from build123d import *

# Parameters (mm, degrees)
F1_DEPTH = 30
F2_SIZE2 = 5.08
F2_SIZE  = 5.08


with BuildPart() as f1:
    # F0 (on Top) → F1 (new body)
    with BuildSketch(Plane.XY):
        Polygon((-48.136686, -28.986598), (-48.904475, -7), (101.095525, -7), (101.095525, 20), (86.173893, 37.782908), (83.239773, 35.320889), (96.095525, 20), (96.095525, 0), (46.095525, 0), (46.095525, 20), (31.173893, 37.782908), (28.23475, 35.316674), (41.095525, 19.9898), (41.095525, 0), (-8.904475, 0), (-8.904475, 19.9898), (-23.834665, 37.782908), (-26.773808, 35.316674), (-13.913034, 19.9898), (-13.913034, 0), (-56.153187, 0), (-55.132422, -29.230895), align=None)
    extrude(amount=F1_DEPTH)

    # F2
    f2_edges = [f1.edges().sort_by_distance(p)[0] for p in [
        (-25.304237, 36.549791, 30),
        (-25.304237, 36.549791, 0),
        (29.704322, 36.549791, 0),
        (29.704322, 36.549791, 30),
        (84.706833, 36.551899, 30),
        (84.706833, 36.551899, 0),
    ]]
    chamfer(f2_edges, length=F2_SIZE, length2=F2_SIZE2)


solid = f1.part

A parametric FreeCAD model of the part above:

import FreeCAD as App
import Part
import Sketcher

V = App.Vector
Q = App.Units.Quantity


def edges_at(feature, points):
    """Names of the edges that pass closest to the given points."""
    edges = feature.Shape.Edges
    near = lambda p: min(range(len(edges)), key=lambda i: edges[i].distToShape(Part.Vertex(*p))[0])
    return sorted({f"Edge{near(p) + 1}" for p in points})

doc = App.newDocument("Part")
body = doc.addObject("PartDesign::Body", "Body")

# Sketch on XY plane
sketch1 = body.newObject("Sketcher::SketchObject", "Sketch")
sketch1.AttachmentSupport = (doc.getObject("XY_Plane"), [""])
sketch1.MapMode = "FlatFace"
sketch1.addGeometry(Part.LineSegment(V(-48.1, -29, 0), V(-48.9, -7, 0)), False)
sketch1.addGeometry(Part.LineSegment(V(-48.9, -7, 0), V(101.1, -7, 0)), False)
sketch1.addGeometry(Part.LineSegment(V(101.1, -7, 0), V(101.1, 20, 0)), False)
sketch1.addGeometry(Part.LineSegment(V(101.1, 20, 0), V(86.2, 37.8, 0)), False)
sketch1.addGeometry(Part.LineSegment(V(86.2, 37.8, 0), V(83.2, 35.3, 0)), False)
sketch1.addGeometry(Part.LineSegment(V(83.2, 35.3, 0), V(96.1, 20, 0)), False)
sketch1.addGeometry(Part.LineSegment(V(96.1, 20, 0), V(96.1, 0, 0)), False)
sketch1.addGeometry(Part.LineSegment(V(96.1, 0, 0), V(46.1, 0, 0)), False)
sketch1.addGeometry(Part.LineSegment(V(46.1, 0, 0), V(46.1, 20, 0)), False)
sketch1.addGeometry(Part.LineSegment(V(46.1, 20, 0), V(31.2, 37.8, 0)), False)
sketch1.addGeometry(Part.LineSegment(V(31.2, 37.8, 0), V(28.2, 35.3, 0)), False)
sketch1.addGeometry(Part.LineSegment(V(28.2, 35.3, 0), V(41.1, 20, 0)), False)
sketch1.addGeometry(Part.LineSegment(V(41.1, 20, 0), V(41.1, 0, 0)), False)
sketch1.addGeometry(Part.LineSegment(V(41.1, 0, 0), V(-8.9, 0, 0)), False)
sketch1.addGeometry(Part.LineSegment(V(-8.9, 0, 0), V(-8.9, 20, 0)), False)
sketch1.addGeometry(Part.LineSegment(V(-8.9, 20, 0), V(-23.8, 37.8, 0)), False)
sketch1.addGeometry(Part.LineSegment(V(-23.8, 37.8, 0), V(-26.8, 35.3, 0)), False)
sketch1.addGeometry(Part.LineSegment(V(-26.8, 35.3, 0), V(-13.9, 20, 0)), False)
sketch1.addGeometry(Part.LineSegment(V(-13.9, 20, 0), V(-13.9, 0, 0)), False)
sketch1.addGeometry(Part.LineSegment(V(-13.9, 0, 0), V(-56.2, 0, 0)), False)
sketch1.addGeometry(Part.LineSegment(V(-56.2, 0, 0), V(-55.1, -29.2, 0)), False)
sketch1.addGeometry(Part.LineSegment(V(-55.1, -29.2, 0), V(-48.1, -29, 0)), False)
sketch1.addConstraint(Sketcher.Constraint("Coincident", 0, 2, 1, 1))
sketch1.addConstraint(Sketcher.Constraint("Coincident", 1, 2, 2, 1))
sketch1.addConstraint(Sketcher.Constraint("Coincident", 2, 2, 3, 1))
sketch1.addConstraint(Sketcher.Constraint("Coincident", 3, 2, 4, 1))
sketch1.addConstraint(Sketcher.Constraint("Coincident", 4, 2, 5, 1))
sketch1.addConstraint(Sketcher.Constraint("Coincident", 5, 2, 6, 1))
sketch1.addConstraint(Sketcher.Constraint("Coincident", 6, 2, 7, 1))
sketch1.addConstraint(Sketcher.Constraint("Coincident", 7, 2, 8, 1))
sketch1.addConstraint(Sketcher.Constraint("Coincident", 8, 2, 9, 1))
sketch1.addConstraint(Sketcher.Constraint("Coincident", 9, 2, 10, 1))
sketch1.addConstraint(Sketcher.Constraint("Coincident", 10, 2, 11, 1))
sketch1.addConstraint(Sketcher.Constraint("Coincident", 11, 2, 12, 1))
sketch1.addConstraint(Sketcher.Constraint("Coincident", 12, 2, 13, 1))
sketch1.addConstraint(Sketcher.Constraint("Coincident", 13, 2, 14, 1))
sketch1.addConstraint(Sketcher.Constraint("Coincident", 14, 2, 15, 1))
sketch1.addConstraint(Sketcher.Constraint("Coincident", 15, 2, 16, 1))
sketch1.addConstraint(Sketcher.Constraint("Coincident", 16, 2, 17, 1))
sketch1.addConstraint(Sketcher.Constraint("Coincident", 17, 2, 18, 1))
sketch1.addConstraint(Sketcher.Constraint("Coincident", 18, 2, 19, 1))
sketch1.addConstraint(Sketcher.Constraint("Coincident", 19, 2, 20, 1))
sketch1.addConstraint(Sketcher.Constraint("Coincident", 20, 2, 21, 1))
sketch1.addConstraint(Sketcher.Constraint("Coincident", 21, 2, 0, 1))
sketch1.addConstraint(Sketcher.Constraint("Horizontal", 1))
sketch1.addConstraint(Sketcher.Constraint("Vertical", 2))
sketch1.addConstraint(Sketcher.Constraint("Vertical", 6))
sketch1.addConstraint(Sketcher.Constraint("Horizontal", 7))
sketch1.addConstraint(Sketcher.Constraint("Vertical", 8))
sketch1.addConstraint(Sketcher.Constraint("Vertical", 12))
sketch1.addConstraint(Sketcher.Constraint("Horizontal", 13))
sketch1.addConstraint(Sketcher.Constraint("Vertical", 14))
sketch1.addConstraint(Sketcher.Constraint("Vertical", 18))
sketch1.addConstraint(Sketcher.Constraint("Horizontal", 19))
sketch1.addConstraint(Sketcher.Constraint("PointOnObject", 6, 2, -1))
sketch1.addConstraint(Sketcher.Constraint("PointOnObject", 12, 2, -1))
sketch1.addConstraint(Sketcher.Constraint("PointOnObject", 18, 2, -1))
sketch1.addConstraint(Sketcher.Constraint("Perpendicular", 3, 4))
sketch1.addConstraint(Sketcher.Constraint("Perpendicular", 4, 5))
sketch1.addConstraint(Sketcher.Constraint("Parallel", 5, 9))
sketch1.addConstraint(Sketcher.Constraint("Perpendicular", 9, 10))
sketch1.addConstraint(Sketcher.Constraint("Perpendicular", 10, 11))
sketch1.addConstraint(Sketcher.Constraint("Parallel", 11, 15))
sketch1.addConstraint(Sketcher.Constraint("Perpendicular", 15, 16))
sketch1.addConstraint(Sketcher.Constraint("Perpendicular", 16, 17))
sketch1.addConstraint(Sketcher.Constraint("Parallel", 0, 20))
sketch1.addConstraint(Sketcher.Constraint("Perpendicular", 20, 21))
sketch1.addConstraint(Sketcher.Constraint("Horizontal", 2, 2, 5, 2))
sketch1.addConstraint(Sketcher.Constraint("Horizontal", 5, 2, 8, 2))
sketch1.addConstraint(Sketcher.Constraint("Horizontal", 3, 2, 9, 2))
sketch1.addConstraint(Sketcher.Constraint("Horizontal", 11, 2, 14, 2))
sketch1.addConstraint(Sketcher.Constraint("Horizontal", 9, 2, 15, 2))
sketch1.addConstraint(Sketcher.Constraint("Horizontal", 10, 2, 16, 2))
sketch1.addConstraint(Sketcher.Constraint("Horizontal", 14, 2, 17, 2))
sketch1.addConstraint(Sketcher.Constraint("Equal", 7, 13))
sketch1.addConstraint(Sketcher.Constraint("DistanceX", 1, 1, 1, 2, 150.0))
sketch1.addConstraint(Sketcher.Constraint("DistanceX", 7, 2, 7, 1, 50.0))
sketch1.addConstraint(Sketcher.Constraint("DistanceY", 2, 1, 2, 2, 27.0))
sketch1.addConstraint(Sketcher.Constraint("DistanceY", 6, 2, 6, 1, 20.0))
sketch1.addConstraint(Sketcher.Constraint("Angle", 0, Q("92 deg")))
sketch1.addConstraint(Sketcher.Constraint("Angle", 3, Q("130.000001 deg")))
sketch1.addConstraint(Sketcher.Constraint("Distance", 0, 22.0))
sketch1.addConstraint(Sketcher.Constraint("Distance", 5, 20.0))
sketch1.addConstraint(Sketcher.Constraint("Distance", 21, 7.0))
sketch1.addConstraint(Sketcher.Constraint("DistanceX", 5, 2, 2, 2, 5.0))
sketch1.addConstraint(Sketcher.Constraint("DistanceX", 11, 2, 8, 2, 5.0))
sketch1.addConstraint(Sketcher.Constraint("DistanceY", 12, 2, 12, 1, 19.9898))
sketch1.addConstraint(Sketcher.Constraint("DistanceX", -1, 1, 10, 2, 28.23475))
pad1 = body.newObject("PartDesign::Pad", "Pad")
pad1.Profile = sketch1
pad1.Length = 30
doc.recompute()

chamfer = body.newObject("PartDesign::Chamfer", "Chamfer")
chamfer.Base = (pad1, edges_at(pad1, [
    (-25.304, 36.55, 30),
    (-25.304, 36.55, 0),
    (29.704, 36.55, 0),
    (29.704, 36.55, 30),
    (84.707, 36.552, 30),
    (84.707, 36.552, 0),
]))
chamfer.ChamferType = "Two distances"
chamfer.Size = 5.08
chamfer.Size2 = 5.08

doc.recompute()
